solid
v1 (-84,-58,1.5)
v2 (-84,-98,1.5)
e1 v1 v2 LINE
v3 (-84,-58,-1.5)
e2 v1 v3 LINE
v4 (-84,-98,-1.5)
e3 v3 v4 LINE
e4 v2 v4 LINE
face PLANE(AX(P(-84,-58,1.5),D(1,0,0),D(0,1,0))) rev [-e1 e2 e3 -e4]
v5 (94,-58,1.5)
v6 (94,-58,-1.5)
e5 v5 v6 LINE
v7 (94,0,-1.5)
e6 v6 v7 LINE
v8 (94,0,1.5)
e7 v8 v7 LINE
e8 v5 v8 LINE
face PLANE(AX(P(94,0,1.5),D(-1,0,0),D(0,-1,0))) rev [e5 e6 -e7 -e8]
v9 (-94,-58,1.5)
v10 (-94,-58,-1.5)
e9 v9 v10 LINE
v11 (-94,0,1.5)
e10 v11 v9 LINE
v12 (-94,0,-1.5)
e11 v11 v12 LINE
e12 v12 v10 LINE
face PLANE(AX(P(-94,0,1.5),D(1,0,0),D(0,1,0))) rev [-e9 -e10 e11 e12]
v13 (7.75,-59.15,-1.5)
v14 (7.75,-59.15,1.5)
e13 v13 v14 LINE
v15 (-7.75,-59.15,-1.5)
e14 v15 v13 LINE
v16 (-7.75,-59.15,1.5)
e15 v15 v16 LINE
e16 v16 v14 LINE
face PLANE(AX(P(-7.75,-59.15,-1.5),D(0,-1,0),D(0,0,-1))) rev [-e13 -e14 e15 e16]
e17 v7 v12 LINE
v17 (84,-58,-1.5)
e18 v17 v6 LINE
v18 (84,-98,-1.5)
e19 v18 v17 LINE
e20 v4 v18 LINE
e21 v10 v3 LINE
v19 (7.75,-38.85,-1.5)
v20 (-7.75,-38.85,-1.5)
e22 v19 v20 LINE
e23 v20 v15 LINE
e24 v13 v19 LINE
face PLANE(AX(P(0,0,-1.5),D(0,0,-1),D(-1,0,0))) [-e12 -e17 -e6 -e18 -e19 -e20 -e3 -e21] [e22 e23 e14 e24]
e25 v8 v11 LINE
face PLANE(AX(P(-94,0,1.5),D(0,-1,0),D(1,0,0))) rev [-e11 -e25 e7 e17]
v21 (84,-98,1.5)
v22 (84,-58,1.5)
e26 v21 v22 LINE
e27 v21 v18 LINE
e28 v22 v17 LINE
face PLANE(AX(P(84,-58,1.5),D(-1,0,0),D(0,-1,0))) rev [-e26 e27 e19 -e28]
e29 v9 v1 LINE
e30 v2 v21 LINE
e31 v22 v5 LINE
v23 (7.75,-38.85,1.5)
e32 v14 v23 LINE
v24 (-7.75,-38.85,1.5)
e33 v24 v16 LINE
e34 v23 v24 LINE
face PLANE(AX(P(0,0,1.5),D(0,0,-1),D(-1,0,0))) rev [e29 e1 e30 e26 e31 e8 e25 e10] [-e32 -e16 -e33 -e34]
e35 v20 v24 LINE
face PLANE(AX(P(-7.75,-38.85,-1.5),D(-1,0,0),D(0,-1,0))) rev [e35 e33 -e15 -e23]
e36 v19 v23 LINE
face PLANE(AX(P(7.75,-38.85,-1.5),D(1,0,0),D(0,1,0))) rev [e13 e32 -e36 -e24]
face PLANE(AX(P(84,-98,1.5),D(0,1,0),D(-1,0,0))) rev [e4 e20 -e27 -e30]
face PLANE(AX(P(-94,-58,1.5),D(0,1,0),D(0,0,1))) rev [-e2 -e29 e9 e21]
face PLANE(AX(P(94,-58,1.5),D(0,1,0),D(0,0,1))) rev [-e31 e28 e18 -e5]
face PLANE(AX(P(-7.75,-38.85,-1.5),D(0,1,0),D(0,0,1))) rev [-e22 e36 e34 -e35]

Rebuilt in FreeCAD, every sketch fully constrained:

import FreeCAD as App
import Part
import Sketcher
from FreeCAD import Vector

doc = App.newDocument("Part")
body = doc.addObject("PartDesign::Body", "Body")

sketch1 = doc.addObject("Sketcher::SketchObject", "Sketch")
body.addObject(sketch1)
sketch1.AttachmentSupport = (doc.XY_Plane, [""])
sketch1.MapMode = "FlatFace"
sketch1.addGeometry(Part.LineSegment(Vector(94, 0, 0), Vector(-94, 0, 0)), False)
sketch1.addGeometry(Part.LineSegment(Vector(-94, 0, 0), Vector(-94, -58, 0)), False)
sketch1.addGeometry(Part.LineSegment(Vector(-94, -58, 0), Vector(-84, -58, 0)), False)
sketch1.addGeometry(Part.LineSegment(Vector(-84, -58, 0), Vector(-84, -98, 0)), False)
sketch1.addGeometry(Part.LineSegment(Vector(-84, -98, 0), Vector(84, -98, 0)), False)
sketch1.addGeometry(Part.LineSegment(Vector(84, -98, 0), Vector(84, -58, 0)), False)
sketch1.addGeometry(Part.LineSegment(Vector(84, -58, 0), Vector(94, -58, 0)), False)
sketch1.addGeometry(Part.LineSegment(Vector(94, -58, 0), Vector(94, 0, 0)), False)
sketch1.addConstraint(Sketcher.Constraint("Coincident", 0, 2, 1, 1))
sketch1.addConstraint(Sketcher.Constraint("Coincident", 1, 2, 2, 1))
sketch1.addConstraint(Sketcher.Constraint("Coincident", 2, 2, 3, 1))
sketch1.addConstraint(Sketcher.Constraint("Coincident", 3, 2, 4, 1))
sketch1.addConstraint(Sketcher.Constraint("Coincident", 4, 2, 5, 1))
sketch1.addConstraint(Sketcher.Constraint("Coincident", 5, 2, 6, 1))
sketch1.addConstraint(Sketcher.Constraint("Coincident", 6, 2, 7, 1))
sketch1.addConstraint(Sketcher.Constraint("Coincident", 7, 2, 0, 1))
sketch1.addConstraint(Sketcher.Constraint("Horizontal", 0))
sketch1.addConstraint(Sketcher.Constraint("Vertical", 1))
sketch1.addConstraint(Sketcher.Constraint("Horizontal", 2))
sketch1.addConstraint(Sketcher.Constraint("Vertical", 3))
sketch1.addConstraint(Sketcher.Constraint("Horizontal", 4))
sketch1.addConstraint(Sketcher.Constraint("Vertical", 5))
sketch1.addConstraint(Sketcher.Constraint("Horizontal", 6))
sketch1.addConstraint(Sketcher.Constraint("Vertical", 7))
sketch1.addConstraint(Sketcher.Constraint("Symmetric", 0, 2, 7, 2, -1, 1))
sketch1.addConstraint(Sketcher.Constraint("Symmetric", 2, 2, 5, 2, -2))
sketch1.addConstraint(Sketcher.Constraint("DistanceX", 0, 2, 0, 1, 188.0))
sketch1.addConstraint(Sketcher.Constraint("DistanceX", 2, 1, 2, 2, 10.0))
sketch1.addConstraint(Sketcher.Constraint("DistanceY", 1, 2, 1, 1, 58.0))
sketch1.addConstraint(Sketcher.Constraint("DistanceY", 3, 2, 3, 1, 40.0))
pad1 = doc.addObject("PartDesign::Pad", "Pad")
body.addObject(pad1)
pad1.Profile = sketch1
pad1.Length = 3
pad1.Midplane = True

sketch2 = doc.addObject("Sketcher::SketchObject", "Sketch001")
body.addObject(sketch2)
sketch2.AttachmentSupport = (doc.XY_Plane, [""])
sketch2.MapMode = "FlatFace"
sketch2.AttachmentOffset = App.Placement(Vector(0, 0, 1.5), App.Rotation())
sketch2.addGeometry(Part.LineSegment(Vector(-7.75, -38.85, 0), Vector(-7.75, -59.15, 0)), False)
sketch2.addGeometry(Part.LineSegment(Vector(-7.75, -59.15, 0), Vector(7.75, -59.15, 0)), False)
sketch2.addGeometry(Part.LineSegment(Vector(7.75, -59.15, 0), Vector(7.75, -38.85, 0)), False)
sketch2.addGeometry(Part.LineSegment(Vector(7.75, -38.85, 0), Vector(-7.75, -38.85, 0)), False)
sketch2.addConstraint(Sketcher.Constraint("Coincident", 0, 2, 1, 1))
sketch2.addConstraint(Sketcher.Constraint("Coincident", 1, 2, 2, 1))
sketch2.addConstraint(Sketcher.Constraint("Coincident", 2, 2, 3, 1))
sketch2.addConstraint(Sketcher.Constraint("Coincident", 3, 2, 0, 1))
sketch2.addConstraint(Sketcher.Constraint("Vertical", 0))
sketch2.addConstraint(Sketcher.Constraint("Horizontal", 1))
sketch2.addConstraint(Sketcher.Constraint("Vertical", 2))
sketch2.addConstraint(Sketcher.Constraint("Horizontal", 3))
sketch2.addConstraint(Sketcher.Constraint("DistanceX", 1, 1, 1, 2, 15.5))
sketch2.addConstraint(Sketcher.Constraint("DistanceY", 0, 2, 0, 1, 20.3))
sketch2.addConstraint(Sketcher.Constraint("DistanceX", 0, 2, -1, 1, 7.75))
sketch2.addConstraint(Sketcher.Constraint("DistanceY", 0, 2, -1, 1, 59.15))
pocket1 = doc.addObject("PartDesign::Pocket", "Pocket")
body.addObject(pocket1)
pocket1.Profile = sketch2
pocket1.Length = 3

doc.recompute()
